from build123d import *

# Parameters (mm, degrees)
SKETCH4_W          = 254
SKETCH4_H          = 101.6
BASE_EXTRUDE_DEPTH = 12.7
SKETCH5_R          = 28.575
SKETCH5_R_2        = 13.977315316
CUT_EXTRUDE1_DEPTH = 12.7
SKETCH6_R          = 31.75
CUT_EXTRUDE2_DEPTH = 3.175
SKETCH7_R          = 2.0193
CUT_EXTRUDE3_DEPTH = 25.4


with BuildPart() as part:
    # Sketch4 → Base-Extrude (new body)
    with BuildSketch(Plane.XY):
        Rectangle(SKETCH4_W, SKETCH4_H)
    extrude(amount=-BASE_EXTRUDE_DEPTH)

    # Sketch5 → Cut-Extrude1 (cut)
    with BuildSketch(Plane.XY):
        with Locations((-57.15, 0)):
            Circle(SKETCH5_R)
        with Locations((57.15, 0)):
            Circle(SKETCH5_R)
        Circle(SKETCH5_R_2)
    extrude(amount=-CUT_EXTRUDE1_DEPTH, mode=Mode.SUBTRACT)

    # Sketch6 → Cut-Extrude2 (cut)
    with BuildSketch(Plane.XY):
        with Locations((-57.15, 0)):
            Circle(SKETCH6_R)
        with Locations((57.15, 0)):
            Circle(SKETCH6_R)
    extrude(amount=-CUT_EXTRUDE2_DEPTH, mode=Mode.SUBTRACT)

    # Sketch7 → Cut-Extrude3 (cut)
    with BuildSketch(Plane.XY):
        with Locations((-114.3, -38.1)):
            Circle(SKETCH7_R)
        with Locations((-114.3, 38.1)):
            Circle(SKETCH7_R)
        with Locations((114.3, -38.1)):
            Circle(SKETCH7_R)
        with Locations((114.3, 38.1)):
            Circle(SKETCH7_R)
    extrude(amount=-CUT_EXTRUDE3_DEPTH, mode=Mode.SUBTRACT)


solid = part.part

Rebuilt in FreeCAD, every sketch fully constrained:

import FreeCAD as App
import Part
import Sketcher
from FreeCAD import Vector
Q = App.Units.Quantity

doc = App.newDocument("Part")
body = doc.addObject("PartDesign::Body", "Body")

# Sketch on XY plane
sketch1 = doc.addObject("Sketcher::SketchObject", "Sketch")
body.addObject(sketch1)
sketch1.AttachmentSupport = (doc.XY_Plane, [""])
sketch1.MapMode = "FlatFace"
sketch1.addGeometry([
    Part.LineSegment(Vector(-127, 51, 0), Vector(-127, -51, 0)),
    Part.LineSegment(Vector(-127, -51, 0), Vector(127, -51, 0)),
    Part.LineSegment(Vector(127, -51, 0), Vector(127, 51, 0)),
    Part.LineSegment(Vector(127, 51, 0), Vector(-127, 51, 0)),
], False)
sketch1.addConstraint([
    Sketcher.Constraint("Coincident", 0, 2, 1, 1),
    Sketcher.Constraint("Coincident", 1, 2, 2, 1),
    Sketcher.Constraint("Coincident", 2, 2, 3, 1),
    Sketcher.Constraint("Coincident", 3, 2, 0, 1),
    Sketcher.Constraint("Vertical", 0),
    Sketcher.Constraint("Horizontal", 1),
    Sketcher.Constraint("Vertical", 2),
    Sketcher.Constraint("Horizontal", 3),
    Sketcher.Constraint("Symmetric", 0, 2, 2, 2, -1, 1),
    Sketcher.Constraint("DistanceX", 1, 1, 1, 2, Q("10 in")),
    Sketcher.Constraint("DistanceY", 0, 2, 0, 1, Q("4 in")),
])
pad1 = doc.addObject("PartDesign::Pad", "Pad")
body.addObject(pad1)
pad1.Profile = sketch1
pad1.Length = Q("0.5 in")
pad1.Reversed = True

# Sketch on XY plane
sketch2 = doc.addObject("Sketcher::SketchObject", "Sketch001")
body.addObject(sketch2)
sketch2.AttachmentSupport = (doc.XY_Plane, [""])
sketch2.MapMode = "FlatFace"
sketch2.addGeometry([
    Part.Circle(Vector(-57, 0, 0), Vector(0, 0, 1), 29),
    Part.Circle(Vector(57, 0, 0), Vector(0, 0, 1), 29),
    Part.Circle(Vector(0, 0, 0), Vector(0, 0, 1), 14),
], False)
sketch2.addConstraint([
    Sketcher.Constraint("Coincident", 2, 3, -1, 1),
    Sketcher.Constraint("Equal", 0, 1),
    Sketcher.Constraint("Symmetric", 0, 3, 1, 3, -1, 1),
    Sketcher.Constraint("PointOnObject", 0, 3, -1),
    Sketcher.Constraint("Diameter", 0, Q("2.25 in")),
    Sketcher.Constraint("DistanceX", 0, 3, 1, 3, Q("4.5 in")),
    Sketcher.Constraint("Diameter", 2, 27.954631),
])
pocket1 = doc.addObject("PartDesign::Pocket", "Pocket")
body.addObject(pocket1)
pocket1.Profile = sketch2
pocket1.Length = Q("0.5 in")

# Sketch on XY plane
sketch3 = doc.addObject("Sketcher::SketchObject", "Sketch002")
body.addObject(sketch3)
sketch3.AttachmentSupport = (doc.XY_Plane, [""])
sketch3.MapMode = "FlatFace"
sketch3.addGeometry([
    Part.Circle(Vector(-57, 0, 0), Vector(0, 0, 1), 32),
    Part.Circle(Vector(57, 0, 0), Vector(0, 0, 1), 32),
], False)
sketch3.addConstraint([
    Sketcher.Constraint("Equal", 0, 1),
    Sketcher.Constraint("Symmetric", 0, 3, 1, 3, -1, 1),
    Sketcher.Constraint("PointOnObject", 0, 3, -1),
    Sketcher.Constraint("Diameter", 0, Q("2.5 in")),
    Sketcher.Constraint("DistanceX", 0, 3, 1, 3, Q("4.5 in")),
])
pocket2 = doc.addObject("PartDesign::Pocket", "Pocket001")
body.addObject(pocket2)
pocket2.Profile = sketch3
pocket2.Length = Q("0.125 in")

# Sketch on XY plane
sketch4 = doc.addObject("Sketcher::SketchObject", "Sketch003")
body.addObject(sketch4)
sketch4.AttachmentSupport = (doc.XY_Plane, [""])
sketch4.MapMode = "FlatFace"
sketch4.addGeometry([
    Part.Circle(Vector(-114.3, -38.1, 0), Vector(0, 0, 1), 2),
    Part.Circle(Vector(-114.3, 38.1, 0), Vector(0, 0, 1), 2),
    Part.Circle(Vector(114.3, -38.1, 0), Vector(0, 0, 1), 2),
    Part.Circle(Vector(114.3, 38.1, 0), Vector(0, 0, 1), 2),
], False)
sketch4.addConstraint([
    Sketcher.Constraint("Equal", 0, 1),
    Sketcher.Constraint("Equal", 1, 2),
    Sketcher.Constraint("Equal", 2, 3),
    Sketcher.Constraint("Symmetric", 1, 3, 2, 3, -1, 1),
    Sketcher.Constraint("Symmetric", 0, 3, 3, 3, -1, 1),
    Sketcher.Constraint("Symmetric", 0, 3, 2, 3, -2),
    Sketcher.Constraint("Diameter", 0, Q("0.159 in")),
    Sketcher.Constraint("DistanceY", 0, 3, 1, 3, Q("3 in")),
    Sketcher.Constraint("DistanceX", 0, 3, 2, 3, Q("9 in")),
])
pocket3 = doc.addObject("PartDesign::Pocket", "Pocket002")
body.addObject(pocket3)
pocket3.Profile = sketch4
pocket3.Length = Q("1 in")

doc.recompute()
